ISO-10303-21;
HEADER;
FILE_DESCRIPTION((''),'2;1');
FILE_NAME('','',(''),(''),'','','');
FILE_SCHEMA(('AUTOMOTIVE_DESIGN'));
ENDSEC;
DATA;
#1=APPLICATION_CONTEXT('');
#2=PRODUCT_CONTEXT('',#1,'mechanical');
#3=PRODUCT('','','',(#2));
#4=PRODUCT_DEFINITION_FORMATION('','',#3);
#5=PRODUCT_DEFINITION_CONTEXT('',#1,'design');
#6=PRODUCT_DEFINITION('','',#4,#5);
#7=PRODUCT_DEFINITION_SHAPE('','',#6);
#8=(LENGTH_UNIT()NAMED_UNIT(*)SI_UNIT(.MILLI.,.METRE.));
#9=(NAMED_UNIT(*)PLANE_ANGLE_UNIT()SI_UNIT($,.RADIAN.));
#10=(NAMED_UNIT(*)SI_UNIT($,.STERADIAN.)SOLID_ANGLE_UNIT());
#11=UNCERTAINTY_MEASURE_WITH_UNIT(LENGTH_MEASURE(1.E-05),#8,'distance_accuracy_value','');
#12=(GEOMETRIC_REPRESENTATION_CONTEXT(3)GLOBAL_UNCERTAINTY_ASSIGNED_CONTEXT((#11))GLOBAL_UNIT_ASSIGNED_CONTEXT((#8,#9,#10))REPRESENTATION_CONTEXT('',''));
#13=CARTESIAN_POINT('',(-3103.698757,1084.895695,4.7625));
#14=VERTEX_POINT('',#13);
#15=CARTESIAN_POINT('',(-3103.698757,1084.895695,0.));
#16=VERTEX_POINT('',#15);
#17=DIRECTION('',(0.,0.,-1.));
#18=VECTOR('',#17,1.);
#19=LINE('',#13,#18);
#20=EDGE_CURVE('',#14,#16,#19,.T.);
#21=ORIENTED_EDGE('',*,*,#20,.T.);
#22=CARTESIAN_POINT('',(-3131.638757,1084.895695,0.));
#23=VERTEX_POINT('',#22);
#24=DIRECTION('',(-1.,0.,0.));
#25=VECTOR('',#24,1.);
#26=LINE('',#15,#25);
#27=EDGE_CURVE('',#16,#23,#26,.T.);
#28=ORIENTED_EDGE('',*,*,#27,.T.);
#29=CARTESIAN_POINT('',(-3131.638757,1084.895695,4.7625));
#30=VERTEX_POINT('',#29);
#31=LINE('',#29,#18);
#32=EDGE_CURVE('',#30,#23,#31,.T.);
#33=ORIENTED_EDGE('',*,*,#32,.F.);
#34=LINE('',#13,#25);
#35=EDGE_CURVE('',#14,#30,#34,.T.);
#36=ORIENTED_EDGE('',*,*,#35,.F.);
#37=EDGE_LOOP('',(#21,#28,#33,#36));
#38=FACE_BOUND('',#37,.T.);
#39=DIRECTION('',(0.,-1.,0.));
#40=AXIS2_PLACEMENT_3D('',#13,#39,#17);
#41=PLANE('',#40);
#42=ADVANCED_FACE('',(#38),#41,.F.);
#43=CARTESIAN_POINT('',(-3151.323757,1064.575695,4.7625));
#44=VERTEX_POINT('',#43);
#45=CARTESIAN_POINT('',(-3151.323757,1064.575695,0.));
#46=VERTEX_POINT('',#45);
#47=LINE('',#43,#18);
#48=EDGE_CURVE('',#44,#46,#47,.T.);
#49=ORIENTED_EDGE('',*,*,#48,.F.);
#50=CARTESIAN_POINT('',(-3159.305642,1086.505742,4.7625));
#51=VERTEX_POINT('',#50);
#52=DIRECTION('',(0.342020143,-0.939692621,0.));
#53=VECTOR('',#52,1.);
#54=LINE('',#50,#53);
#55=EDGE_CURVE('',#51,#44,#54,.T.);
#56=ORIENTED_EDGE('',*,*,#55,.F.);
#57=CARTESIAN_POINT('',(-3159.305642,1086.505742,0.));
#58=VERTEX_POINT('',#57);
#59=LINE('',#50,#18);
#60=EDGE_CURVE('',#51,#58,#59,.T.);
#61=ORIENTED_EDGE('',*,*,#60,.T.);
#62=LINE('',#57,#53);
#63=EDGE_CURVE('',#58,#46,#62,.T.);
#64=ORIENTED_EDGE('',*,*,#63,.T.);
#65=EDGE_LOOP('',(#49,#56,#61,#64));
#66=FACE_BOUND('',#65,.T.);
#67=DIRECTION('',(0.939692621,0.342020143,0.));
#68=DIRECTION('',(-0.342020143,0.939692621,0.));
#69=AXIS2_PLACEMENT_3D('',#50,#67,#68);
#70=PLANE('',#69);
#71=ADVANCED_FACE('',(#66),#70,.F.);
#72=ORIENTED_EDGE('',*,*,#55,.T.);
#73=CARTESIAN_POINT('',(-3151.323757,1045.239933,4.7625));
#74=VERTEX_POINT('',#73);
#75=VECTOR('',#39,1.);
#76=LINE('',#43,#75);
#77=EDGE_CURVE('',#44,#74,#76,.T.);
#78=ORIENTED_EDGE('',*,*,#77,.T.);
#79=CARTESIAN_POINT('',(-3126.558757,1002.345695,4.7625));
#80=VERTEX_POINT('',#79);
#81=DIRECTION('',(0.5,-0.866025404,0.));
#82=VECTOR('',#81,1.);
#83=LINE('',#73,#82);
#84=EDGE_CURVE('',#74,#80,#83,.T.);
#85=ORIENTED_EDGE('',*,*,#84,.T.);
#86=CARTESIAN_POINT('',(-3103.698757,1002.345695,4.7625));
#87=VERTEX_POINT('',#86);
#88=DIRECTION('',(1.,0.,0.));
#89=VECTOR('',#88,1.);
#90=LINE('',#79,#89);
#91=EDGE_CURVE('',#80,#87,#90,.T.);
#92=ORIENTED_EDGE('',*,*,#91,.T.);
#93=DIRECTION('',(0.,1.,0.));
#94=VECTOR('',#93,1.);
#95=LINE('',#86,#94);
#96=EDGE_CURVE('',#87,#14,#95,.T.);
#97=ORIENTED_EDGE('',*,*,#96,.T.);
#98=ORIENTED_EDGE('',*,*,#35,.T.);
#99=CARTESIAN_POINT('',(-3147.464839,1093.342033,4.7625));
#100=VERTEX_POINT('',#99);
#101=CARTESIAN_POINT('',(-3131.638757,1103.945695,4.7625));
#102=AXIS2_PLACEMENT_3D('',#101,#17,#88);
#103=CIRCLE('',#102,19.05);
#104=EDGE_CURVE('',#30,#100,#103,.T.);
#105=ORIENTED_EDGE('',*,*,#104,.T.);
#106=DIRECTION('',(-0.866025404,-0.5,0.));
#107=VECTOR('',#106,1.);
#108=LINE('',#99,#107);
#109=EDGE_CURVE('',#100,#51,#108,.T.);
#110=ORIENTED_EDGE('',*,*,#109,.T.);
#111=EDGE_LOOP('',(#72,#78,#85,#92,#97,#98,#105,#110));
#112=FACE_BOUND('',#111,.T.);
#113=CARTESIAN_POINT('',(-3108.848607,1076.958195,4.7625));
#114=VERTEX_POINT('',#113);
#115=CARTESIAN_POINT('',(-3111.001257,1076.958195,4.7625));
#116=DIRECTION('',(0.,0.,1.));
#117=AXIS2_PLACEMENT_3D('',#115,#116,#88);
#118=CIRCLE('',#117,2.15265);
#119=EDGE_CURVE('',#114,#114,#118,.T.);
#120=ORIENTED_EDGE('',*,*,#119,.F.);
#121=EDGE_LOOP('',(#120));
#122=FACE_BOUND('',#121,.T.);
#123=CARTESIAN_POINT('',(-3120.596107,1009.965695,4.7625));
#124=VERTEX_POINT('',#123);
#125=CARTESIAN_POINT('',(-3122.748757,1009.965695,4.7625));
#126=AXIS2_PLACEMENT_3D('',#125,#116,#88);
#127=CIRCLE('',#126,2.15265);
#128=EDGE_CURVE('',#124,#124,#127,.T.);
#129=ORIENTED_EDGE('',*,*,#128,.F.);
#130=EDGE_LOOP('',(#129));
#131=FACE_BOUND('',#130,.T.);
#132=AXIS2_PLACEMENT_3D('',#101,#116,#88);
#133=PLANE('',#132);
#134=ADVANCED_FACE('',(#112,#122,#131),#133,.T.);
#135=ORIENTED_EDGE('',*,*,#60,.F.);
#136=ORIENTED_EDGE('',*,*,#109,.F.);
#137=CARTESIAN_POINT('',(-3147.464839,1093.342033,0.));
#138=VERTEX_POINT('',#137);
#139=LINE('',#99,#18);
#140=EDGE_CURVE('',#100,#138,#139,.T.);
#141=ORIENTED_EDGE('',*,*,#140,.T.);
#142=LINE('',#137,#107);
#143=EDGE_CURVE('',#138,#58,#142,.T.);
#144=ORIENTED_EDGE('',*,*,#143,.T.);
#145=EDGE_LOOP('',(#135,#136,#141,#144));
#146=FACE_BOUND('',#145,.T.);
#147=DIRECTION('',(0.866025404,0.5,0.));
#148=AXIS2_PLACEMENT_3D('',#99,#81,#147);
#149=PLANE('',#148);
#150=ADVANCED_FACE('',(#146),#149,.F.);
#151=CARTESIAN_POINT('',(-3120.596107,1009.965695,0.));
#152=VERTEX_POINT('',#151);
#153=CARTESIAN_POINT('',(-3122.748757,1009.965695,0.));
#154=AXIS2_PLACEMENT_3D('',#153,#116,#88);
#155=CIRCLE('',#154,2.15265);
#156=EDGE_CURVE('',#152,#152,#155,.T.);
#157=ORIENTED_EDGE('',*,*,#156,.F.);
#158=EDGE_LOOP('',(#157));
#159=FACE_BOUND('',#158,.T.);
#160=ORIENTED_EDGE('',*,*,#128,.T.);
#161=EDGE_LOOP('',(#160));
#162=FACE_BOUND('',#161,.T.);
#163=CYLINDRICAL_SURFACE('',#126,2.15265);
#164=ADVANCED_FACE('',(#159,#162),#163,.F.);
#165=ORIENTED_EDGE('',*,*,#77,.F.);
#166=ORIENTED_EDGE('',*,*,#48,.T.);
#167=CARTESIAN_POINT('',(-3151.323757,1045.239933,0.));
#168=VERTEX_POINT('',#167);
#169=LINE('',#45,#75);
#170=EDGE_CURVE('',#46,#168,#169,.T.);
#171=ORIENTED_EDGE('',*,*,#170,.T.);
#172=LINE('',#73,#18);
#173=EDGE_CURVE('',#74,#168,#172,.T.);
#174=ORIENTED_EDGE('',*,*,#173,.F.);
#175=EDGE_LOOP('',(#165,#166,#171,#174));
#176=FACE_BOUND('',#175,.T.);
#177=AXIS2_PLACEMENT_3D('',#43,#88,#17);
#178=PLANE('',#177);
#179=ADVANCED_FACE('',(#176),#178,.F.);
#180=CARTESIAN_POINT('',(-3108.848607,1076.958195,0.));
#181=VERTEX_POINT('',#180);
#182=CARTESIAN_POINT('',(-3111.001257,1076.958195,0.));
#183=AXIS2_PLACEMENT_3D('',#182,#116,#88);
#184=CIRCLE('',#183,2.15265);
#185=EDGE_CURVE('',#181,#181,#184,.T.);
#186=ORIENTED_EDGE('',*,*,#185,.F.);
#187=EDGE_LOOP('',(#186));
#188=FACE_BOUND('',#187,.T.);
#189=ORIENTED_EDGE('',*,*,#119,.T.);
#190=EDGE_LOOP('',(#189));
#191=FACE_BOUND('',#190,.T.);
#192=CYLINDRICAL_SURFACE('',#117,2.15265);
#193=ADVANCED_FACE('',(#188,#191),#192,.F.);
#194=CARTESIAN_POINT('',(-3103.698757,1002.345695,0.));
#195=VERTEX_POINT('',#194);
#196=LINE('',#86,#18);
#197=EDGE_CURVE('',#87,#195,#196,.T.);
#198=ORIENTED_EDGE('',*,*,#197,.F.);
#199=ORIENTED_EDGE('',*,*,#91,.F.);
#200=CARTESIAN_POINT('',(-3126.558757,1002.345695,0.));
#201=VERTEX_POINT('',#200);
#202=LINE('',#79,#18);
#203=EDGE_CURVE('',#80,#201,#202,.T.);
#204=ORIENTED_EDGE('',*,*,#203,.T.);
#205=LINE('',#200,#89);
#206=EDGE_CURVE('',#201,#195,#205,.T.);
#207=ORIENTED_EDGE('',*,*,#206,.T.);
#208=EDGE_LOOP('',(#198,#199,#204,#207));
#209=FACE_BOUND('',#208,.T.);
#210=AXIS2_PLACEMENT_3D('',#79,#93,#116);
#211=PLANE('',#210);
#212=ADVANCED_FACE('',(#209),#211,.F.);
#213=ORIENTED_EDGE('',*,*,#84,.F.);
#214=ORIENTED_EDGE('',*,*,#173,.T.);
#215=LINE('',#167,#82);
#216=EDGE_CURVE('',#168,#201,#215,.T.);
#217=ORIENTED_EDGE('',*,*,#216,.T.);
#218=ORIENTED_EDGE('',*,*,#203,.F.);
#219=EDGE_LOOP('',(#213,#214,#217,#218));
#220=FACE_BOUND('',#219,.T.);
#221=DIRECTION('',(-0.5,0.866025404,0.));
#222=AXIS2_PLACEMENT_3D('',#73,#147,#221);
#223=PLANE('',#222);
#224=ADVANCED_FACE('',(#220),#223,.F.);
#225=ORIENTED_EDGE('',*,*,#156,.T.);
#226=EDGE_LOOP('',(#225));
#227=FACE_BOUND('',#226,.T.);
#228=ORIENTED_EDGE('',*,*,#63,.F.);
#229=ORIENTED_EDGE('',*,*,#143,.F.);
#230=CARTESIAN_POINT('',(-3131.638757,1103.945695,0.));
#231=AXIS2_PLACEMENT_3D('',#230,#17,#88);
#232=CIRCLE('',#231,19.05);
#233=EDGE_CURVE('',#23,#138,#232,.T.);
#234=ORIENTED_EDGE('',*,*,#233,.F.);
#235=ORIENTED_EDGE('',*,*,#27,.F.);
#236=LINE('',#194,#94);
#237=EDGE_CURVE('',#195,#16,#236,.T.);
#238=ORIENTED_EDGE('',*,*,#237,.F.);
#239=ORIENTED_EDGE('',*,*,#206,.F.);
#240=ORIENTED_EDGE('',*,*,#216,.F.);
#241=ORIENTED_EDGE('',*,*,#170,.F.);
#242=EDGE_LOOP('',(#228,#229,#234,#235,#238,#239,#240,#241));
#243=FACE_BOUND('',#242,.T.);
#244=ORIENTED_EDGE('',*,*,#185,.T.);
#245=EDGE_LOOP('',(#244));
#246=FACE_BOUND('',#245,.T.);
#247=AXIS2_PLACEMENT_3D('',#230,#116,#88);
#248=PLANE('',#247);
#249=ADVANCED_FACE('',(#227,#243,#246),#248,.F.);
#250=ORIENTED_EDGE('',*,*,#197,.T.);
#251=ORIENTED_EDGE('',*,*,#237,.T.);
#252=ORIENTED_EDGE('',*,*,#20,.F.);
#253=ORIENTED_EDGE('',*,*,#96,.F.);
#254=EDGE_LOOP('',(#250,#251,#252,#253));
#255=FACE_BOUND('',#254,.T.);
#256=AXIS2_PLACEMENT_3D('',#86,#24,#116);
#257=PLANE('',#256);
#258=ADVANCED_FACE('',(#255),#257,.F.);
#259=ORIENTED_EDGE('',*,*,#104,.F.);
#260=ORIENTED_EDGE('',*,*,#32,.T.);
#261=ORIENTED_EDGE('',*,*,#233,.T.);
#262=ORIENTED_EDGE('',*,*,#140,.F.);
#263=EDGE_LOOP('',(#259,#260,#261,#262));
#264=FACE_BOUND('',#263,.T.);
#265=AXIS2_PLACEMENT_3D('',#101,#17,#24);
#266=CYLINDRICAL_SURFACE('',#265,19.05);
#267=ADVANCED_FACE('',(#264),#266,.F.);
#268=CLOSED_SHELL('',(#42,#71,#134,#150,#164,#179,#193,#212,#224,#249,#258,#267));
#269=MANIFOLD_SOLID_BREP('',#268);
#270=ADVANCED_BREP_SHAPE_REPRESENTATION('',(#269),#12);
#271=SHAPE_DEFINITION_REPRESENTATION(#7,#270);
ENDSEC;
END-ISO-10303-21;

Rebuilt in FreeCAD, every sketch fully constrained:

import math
import FreeCAD as App
import Part
import Sketcher
from FreeCAD import Vector
Q = App.Units.Quantity

doc = App.newDocument("Part")
body = doc.addObject("PartDesign::Body", "Body")

# Sketch on XY plane
sketch1 = body.newObject("Sketcher::SketchObject", "Sketch")
sketch1.AttachmentSupport = (doc.getObject("XY_Plane"), [""])
sketch1.MapMode = "FlatFace"
sketch1.addGeometry([
    Part.LineSegment(Vector(-3103.698757, 1002.345695, 0), Vector(-3103.698757, 1084.895695, 0)),  # 0
    Part.LineSegment(Vector(-3103.698757, 1084.895695, 0), Vector(-3131.638757, 1084.895695, 0)),  # 1
    Part.ArcOfCircle(Part.Circle(Vector(-3131.638757, 1103.945695, 0), Vector(0, 0, 1), 19.05), math.radians(-146.177446), math.radians(-90)),  # 2
    Part.LineSegment(Vector(-3147.464839, 1093.342033, 0), Vector(-3159.305642, 1086.505742, 0)),  # 3
    Part.LineSegment(Vector(-3159.305642, 1086.505742, 0), Vector(-3151.323757, 1064.575695, 0)),  # 4
    Part.LineSegment(Vector(-3151.323757, 1064.575695, 0), Vector(-3151.323757, 1045.239933, 0)),  # 5
    Part.LineSegment(Vector(-3151.323757, 1045.239933, 0), Vector(-3126.558757, 1002.345695, 0)),  # 6
    Part.LineSegment(Vector(-3126.558757, 1002.345695, 0), Vector(-3103.698757, 1002.345695, 0)),  # 7
], False)
sketch1.addConstraint([
    Sketcher.Constraint("Coincident", 0, 2, 1, 1),
    Sketcher.Constraint("Tangent", 1, 2, 2, 2),
    Sketcher.Constraint("Coincident", 2, 1, 3, 1),
    Sketcher.Constraint("Coincident", 3, 2, 4, 1),
    Sketcher.Constraint("Coincident", 4, 2, 5, 1),
    Sketcher.Constraint("Coincident", 5, 2, 6, 1),
    Sketcher.Constraint("Coincident", 6, 2, 7, 1),
    Sketcher.Constraint("Coincident", 7, 2, 0, 1),
    Sketcher.Constraint("Vertical", 0),
    Sketcher.Constraint("Horizontal", 1),
    Sketcher.Constraint("Vertical", 5),
    Sketcher.Constraint("Horizontal", 7),
    Sketcher.Constraint("Perpendicular", 3, 6),
    Sketcher.Constraint("Radius", 2, Q("0.75 in")),
    Sketcher.Constraint("DistanceX", 1, 2, 1, 1, Q("1.1 in")),
    Sketcher.Constraint("DistanceX", 7, 1, 7, 2, Q("0.9 in")),
    Sketcher.Constraint("Angle", 3, Q("-150 deg")),
    Sketcher.Constraint("Angle", 4, Q("-70 deg")),
    Sketcher.Constraint("DistanceY", 0, 1, 0, 2, Q("3.25 in")),
    Sketcher.Constraint("DistanceY", 4, 2, 1, 2, Q("0.8 in")),
    Sketcher.Constraint("Distance", 6, Q("1.95 in")),
    Sketcher.Constraint("DistanceY", 5, 2, 2, 1, Q("48.1021 mm")),
    Sketcher.Constraint("DistanceX", 2, 1, -1, 1, Q("3147.464839 mm")),
    Sketcher.Constraint("DistanceY", -1, 1, 3, 2, Q("1086.505742 mm")),
])
pad1 = body.newObject("PartDesign::Pad", "Pad")
pad1.Profile = sketch1
pad1.Length = Q("0.1875 in")

# Sketch on XY plane
sketch2 = body.newObject("Sketcher::SketchObject", "Sketch001")
sketch2.AttachmentSupport = (doc.getObject("XY_Plane"), [""])
sketch2.MapMode = "FlatFace"
sketch2.AttachmentOffset = App.Placement(Vector(0, 0, 0.1875 * 25.4), App.Rotation())
sketch2.addGeometry([
    Part.Circle(Vector(-3122.748757, 1009.965695, 0), Vector(0, 0, 1), 2.15265),
    Part.Circle(Vector(-3111.001257, 1076.958195, 0), Vector(0, 0, 1), 2.15265),
], False)
sketch2.addConstraint([
    Sketcher.Constraint("Equal", 0, 1),
    Sketcher.Constraint("Diameter", 0, Q("0.1695 in")),
    Sketcher.Constraint("DistanceX", 0, 3, 1, 3, Q("0.4625 in")),
    Sketcher.Constraint("DistanceY", 0, 3, 1, 3, Q("2.6375 in")),
    Sketcher.Constraint("DistanceX", 0, 3, -1, 1, Q("3122.748757 mm")),
    Sketcher.Constraint("DistanceY", -1, 1, 0, 3, Q("1009.965695 mm")),
])
doc.recompute()
hole = body.newObject("PartDesign::Hole", "Hole")
hole.Profile = sketch2
hole.ThreadType = "None"
hole.Diameter = Q("0.1695 in")
hole.DepthType = "ThroughAll"

doc.recompute()
